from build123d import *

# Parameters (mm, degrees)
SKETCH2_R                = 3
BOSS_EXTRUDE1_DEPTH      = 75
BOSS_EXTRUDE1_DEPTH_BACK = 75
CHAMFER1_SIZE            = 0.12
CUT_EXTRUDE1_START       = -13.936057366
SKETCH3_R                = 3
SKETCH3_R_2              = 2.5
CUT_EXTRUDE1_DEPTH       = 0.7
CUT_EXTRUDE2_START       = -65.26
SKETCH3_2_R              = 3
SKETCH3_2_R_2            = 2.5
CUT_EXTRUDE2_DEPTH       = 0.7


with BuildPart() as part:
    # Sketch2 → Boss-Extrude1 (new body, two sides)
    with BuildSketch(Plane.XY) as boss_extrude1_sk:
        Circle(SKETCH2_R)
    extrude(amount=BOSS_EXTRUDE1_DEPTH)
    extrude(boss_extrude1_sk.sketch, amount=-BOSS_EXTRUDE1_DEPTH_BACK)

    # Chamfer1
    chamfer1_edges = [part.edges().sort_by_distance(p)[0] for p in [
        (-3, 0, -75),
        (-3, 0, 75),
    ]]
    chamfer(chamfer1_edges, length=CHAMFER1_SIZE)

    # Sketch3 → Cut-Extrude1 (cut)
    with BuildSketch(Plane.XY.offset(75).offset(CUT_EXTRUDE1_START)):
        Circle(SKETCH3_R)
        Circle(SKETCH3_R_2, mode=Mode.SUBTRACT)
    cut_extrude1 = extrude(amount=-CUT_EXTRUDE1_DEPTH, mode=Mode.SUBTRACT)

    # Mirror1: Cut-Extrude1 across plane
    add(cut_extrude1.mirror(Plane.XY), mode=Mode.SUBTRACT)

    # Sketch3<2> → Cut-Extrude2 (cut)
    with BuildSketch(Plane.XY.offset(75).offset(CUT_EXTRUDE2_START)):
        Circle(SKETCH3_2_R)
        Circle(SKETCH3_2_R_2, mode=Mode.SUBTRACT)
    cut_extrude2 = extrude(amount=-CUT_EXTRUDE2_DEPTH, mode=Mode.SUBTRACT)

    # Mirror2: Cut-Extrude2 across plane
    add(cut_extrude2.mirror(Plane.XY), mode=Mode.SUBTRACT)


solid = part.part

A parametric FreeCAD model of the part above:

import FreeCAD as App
import Part
import Sketcher

V = App.Vector
Q = App.Units.Quantity


def edges_at(feature, points):
    """Names of the edges that pass closest to the given points."""
    edges = feature.Shape.Edges
    near = lambda p: min(range(len(edges)), key=lambda i: edges[i].distToShape(Part.Vertex(*p))[0])
    return sorted({f"Edge{near(p) + 1}" for p in points})

doc = App.newDocument("Part")
body = doc.addObject("PartDesign::Body", "Body")

sketch1 = body.newObject("Sketcher::SketchObject", "Sketch")
sketch1.AttachmentSupport = (doc.getObject("XY_Plane"), [""])
sketch1.MapMode = "FlatFace"
sketch1.addGeometry(Part.Circle(V(0, 0, 0), V(0, 0, 1), 3), False)
sketch1.addConstraint(Sketcher.Constraint("Coincident", 0, 3, -1, 1))
sketch1.addConstraint(Sketcher.Constraint("Diameter", 0, Q("6 mm")))
pad1 = body.newObject("PartDesign::Pad", "Pad")
pad1.Profile = sketch1
pad1.Type = "TwoLengths"
pad1.Length = 75
pad1.Length2 = 75
doc.recompute()

chamfer = body.newObject("PartDesign::Chamfer", "Chamfer")
chamfer.Base = (pad1, edges_at(pad1, [(-3, 0, -75), (-3, 0, 75)]))
chamfer.Size = 0.12

sketch2 = body.newObject("Sketcher::SketchObject", "Sketch001")
sketch2.AttachmentSupport = (doc.getObject("XY_Plane"), [""])
sketch2.MapMode = "FlatFace"
sketch2.AttachmentOffset = App.Placement(V(0, 0, 61.063943), App.Rotation())
sketch2.addGeometry(Part.Circle(V(0, 0, 0), V(0, 0, 1), 3), False)
sketch2.addGeometry(Part.Circle(V(0, 0, 0), V(0, 0, 1), 2.5), False)
sketch2.addConstraint(Sketcher.Constraint("Coincident", 0, 3, -1, 1))
sketch2.addConstraint(Sketcher.Constraint("Coincident", 1, 3, -1, 1))
sketch2.addConstraint(Sketcher.Constraint("Diameter", 0, Q("6 mm")))
sketch2.addConstraint(Sketcher.Constraint("Diameter", 1, Q("5 mm")))
pocket1 = body.newObject("PartDesign::Pocket", "Pocket")
pocket1.Profile = sketch2
pocket1.Length = 0.7
doc.recompute()

mirrored = body.newObject("PartDesign::Mirrored", "Mirrored")
mirrored.Originals = [pocket1]
mirrored.MirrorPlane = (doc.getObject("XY_Plane"), [""])
body.Tip = mirrored

sketch3 = body.newObject("Sketcher::SketchObject", "Sketch002")
sketch3.AttachmentSupport = (doc.getObject("XY_Plane"), [""])
sketch3.MapMode = "FlatFace"
sketch3.AttachmentOffset = App.Placement(V(0, 0, 9.74), App.Rotation())
sketch3.addGeometry(Part.Circle(V(0, 0, 0), V(0, 0, 1), 3), False)
sketch3.addGeometry(Part.Circle(V(0, 0, 0), V(0, 0, 1), 2.5), False)
sketch3.addConstraint(Sketcher.Constraint("Coincident", 0, 3, -1, 1))
sketch3.addConstraint(Sketcher.Constraint("Coincident", 1, 3, -1, 1))
sketch3.addConstraint(Sketcher.Constraint("Diameter", 0, Q("6 mm")))
sketch3.addConstraint(Sketcher.Constraint("Diameter", 1, Q("5 mm")))
pocket2 = body.newObject("PartDesign::Pocket", "Pocket001")
pocket2.Profile = sketch3
pocket2.Length = 0.7
doc.recompute()

mirrored2 = body.newObject("PartDesign::Mirrored", "Mirrored001")
mirrored2.Originals = [pocket2]
mirrored2.MirrorPlane = (doc.getObject("XY_Plane"), [""])
body.Tip = mirrored2

doc.recompute()
